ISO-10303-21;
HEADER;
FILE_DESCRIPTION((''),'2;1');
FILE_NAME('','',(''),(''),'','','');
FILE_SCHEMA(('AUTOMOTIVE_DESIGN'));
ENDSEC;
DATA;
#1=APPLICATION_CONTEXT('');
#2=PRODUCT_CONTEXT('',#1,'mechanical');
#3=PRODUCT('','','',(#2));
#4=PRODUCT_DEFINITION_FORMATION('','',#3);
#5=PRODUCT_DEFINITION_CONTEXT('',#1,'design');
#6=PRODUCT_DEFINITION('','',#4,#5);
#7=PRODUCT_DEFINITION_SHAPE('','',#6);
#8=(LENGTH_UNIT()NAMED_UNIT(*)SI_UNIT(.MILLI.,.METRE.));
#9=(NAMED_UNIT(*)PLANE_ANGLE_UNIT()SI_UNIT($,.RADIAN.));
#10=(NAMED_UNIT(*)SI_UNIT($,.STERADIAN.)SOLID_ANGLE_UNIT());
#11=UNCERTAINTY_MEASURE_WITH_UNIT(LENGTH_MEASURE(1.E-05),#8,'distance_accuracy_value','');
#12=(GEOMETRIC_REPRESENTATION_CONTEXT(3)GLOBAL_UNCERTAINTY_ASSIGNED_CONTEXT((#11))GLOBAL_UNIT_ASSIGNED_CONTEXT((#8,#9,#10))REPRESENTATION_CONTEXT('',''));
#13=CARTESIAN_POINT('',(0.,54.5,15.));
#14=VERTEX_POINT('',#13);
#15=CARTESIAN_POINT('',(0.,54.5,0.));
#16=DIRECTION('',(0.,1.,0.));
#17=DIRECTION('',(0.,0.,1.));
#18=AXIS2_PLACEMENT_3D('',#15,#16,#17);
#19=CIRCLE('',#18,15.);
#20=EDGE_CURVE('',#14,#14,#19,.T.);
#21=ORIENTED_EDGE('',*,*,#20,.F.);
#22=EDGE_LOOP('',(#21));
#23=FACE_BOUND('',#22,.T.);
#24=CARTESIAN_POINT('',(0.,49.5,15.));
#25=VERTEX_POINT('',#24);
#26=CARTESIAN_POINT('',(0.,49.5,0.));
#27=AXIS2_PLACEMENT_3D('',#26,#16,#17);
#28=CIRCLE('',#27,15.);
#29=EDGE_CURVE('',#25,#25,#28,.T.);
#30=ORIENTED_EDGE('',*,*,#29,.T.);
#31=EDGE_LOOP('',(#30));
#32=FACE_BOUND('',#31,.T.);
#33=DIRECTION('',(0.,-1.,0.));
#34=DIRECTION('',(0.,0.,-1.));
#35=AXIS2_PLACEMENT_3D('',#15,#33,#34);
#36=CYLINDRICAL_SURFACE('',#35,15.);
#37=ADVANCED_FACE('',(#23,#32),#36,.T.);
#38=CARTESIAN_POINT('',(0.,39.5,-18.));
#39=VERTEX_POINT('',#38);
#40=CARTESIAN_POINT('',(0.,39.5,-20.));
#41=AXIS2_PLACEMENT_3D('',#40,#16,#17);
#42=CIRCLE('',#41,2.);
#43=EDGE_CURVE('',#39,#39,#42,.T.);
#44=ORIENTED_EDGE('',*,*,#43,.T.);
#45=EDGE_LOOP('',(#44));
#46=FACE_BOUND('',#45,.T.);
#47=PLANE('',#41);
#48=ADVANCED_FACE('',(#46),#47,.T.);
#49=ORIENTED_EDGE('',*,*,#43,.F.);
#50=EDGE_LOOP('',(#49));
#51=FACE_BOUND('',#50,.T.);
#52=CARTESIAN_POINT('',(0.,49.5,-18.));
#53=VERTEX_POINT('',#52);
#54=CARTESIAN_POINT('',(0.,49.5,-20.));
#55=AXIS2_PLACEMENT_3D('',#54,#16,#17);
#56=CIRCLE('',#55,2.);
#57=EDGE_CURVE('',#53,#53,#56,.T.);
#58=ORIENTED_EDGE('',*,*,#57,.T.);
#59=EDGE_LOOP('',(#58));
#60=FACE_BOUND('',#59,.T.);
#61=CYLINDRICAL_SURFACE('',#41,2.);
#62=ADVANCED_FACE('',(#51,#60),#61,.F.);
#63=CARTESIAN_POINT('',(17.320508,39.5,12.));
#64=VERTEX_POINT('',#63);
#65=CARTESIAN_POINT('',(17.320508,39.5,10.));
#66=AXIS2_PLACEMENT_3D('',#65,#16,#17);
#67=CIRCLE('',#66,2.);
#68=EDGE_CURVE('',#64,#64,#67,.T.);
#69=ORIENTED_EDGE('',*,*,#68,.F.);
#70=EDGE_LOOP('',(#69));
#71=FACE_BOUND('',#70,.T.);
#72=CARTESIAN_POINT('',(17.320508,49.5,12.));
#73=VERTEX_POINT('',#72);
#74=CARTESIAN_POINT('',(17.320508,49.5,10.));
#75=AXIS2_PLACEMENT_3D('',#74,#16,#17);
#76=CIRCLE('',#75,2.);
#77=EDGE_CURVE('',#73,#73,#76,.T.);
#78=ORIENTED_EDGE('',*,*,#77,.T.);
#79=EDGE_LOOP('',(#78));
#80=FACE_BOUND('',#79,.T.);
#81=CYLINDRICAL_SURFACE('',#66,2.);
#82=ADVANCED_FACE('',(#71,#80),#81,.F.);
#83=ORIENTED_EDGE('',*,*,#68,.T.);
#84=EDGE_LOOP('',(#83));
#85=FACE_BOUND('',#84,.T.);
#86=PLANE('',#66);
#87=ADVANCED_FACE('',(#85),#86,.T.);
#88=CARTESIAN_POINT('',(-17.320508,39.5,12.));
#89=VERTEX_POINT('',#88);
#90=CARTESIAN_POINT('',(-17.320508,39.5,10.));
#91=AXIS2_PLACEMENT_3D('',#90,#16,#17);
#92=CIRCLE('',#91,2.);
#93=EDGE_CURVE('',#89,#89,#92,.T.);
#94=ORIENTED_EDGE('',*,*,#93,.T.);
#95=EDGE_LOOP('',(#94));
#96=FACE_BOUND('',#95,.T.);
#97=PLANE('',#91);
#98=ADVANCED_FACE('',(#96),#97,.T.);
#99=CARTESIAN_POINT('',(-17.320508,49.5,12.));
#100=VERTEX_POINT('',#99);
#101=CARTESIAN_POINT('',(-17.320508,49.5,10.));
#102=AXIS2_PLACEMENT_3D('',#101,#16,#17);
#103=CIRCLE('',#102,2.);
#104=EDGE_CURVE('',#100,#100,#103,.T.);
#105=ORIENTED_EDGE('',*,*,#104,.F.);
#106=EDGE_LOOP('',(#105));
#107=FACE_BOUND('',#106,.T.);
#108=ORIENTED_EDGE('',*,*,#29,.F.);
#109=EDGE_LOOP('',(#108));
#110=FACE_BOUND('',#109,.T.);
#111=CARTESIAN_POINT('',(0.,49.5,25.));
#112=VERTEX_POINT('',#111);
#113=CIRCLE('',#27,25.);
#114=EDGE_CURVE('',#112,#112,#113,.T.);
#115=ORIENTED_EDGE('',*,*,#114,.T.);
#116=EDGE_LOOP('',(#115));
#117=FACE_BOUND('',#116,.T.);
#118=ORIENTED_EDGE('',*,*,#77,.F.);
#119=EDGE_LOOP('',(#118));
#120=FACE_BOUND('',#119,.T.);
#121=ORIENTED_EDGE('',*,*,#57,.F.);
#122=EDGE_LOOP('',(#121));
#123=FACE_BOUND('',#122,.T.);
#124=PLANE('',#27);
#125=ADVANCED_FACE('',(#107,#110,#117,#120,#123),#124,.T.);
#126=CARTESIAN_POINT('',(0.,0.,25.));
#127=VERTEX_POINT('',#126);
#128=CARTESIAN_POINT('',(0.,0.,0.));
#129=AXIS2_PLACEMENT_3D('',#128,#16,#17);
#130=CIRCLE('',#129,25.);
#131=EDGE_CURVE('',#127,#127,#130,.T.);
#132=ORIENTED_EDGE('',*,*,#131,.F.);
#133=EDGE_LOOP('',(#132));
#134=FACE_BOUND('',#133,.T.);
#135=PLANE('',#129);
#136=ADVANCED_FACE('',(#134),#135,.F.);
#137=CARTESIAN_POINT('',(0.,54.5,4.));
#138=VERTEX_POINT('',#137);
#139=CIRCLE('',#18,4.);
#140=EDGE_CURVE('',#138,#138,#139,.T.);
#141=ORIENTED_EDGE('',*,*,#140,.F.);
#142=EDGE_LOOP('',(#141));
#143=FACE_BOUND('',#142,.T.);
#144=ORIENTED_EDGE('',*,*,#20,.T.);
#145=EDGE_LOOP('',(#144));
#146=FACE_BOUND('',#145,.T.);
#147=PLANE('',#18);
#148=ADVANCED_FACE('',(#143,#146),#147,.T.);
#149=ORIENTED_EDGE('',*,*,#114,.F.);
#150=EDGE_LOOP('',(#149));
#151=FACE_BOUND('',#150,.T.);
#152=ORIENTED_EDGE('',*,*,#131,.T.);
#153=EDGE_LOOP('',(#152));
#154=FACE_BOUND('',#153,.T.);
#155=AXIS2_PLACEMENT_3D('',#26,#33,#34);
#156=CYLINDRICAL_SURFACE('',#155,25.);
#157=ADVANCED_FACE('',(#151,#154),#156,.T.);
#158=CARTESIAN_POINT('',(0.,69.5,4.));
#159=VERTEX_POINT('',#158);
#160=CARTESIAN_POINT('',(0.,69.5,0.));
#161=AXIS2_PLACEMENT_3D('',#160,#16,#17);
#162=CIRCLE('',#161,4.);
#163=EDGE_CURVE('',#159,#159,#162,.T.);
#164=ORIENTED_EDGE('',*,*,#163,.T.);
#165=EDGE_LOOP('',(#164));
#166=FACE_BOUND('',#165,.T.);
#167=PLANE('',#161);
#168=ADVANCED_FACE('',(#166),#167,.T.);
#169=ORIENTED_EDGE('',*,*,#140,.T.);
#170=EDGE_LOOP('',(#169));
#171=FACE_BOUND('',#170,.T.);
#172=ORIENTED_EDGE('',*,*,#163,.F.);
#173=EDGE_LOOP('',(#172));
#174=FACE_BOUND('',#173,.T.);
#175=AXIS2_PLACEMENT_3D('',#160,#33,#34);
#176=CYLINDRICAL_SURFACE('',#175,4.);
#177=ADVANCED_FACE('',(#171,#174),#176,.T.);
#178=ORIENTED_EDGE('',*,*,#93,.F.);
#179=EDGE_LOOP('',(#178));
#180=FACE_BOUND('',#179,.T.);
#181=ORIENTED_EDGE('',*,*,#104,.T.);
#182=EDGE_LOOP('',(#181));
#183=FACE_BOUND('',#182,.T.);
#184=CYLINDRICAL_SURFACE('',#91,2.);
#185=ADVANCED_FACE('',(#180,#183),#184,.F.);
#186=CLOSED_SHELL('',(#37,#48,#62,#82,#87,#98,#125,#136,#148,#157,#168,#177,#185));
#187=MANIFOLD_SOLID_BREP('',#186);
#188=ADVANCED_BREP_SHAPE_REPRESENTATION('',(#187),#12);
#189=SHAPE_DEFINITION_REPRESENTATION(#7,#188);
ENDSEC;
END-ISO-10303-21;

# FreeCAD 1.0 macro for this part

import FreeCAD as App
import Part
import Sketcher

V = App.Vector

doc = App.newDocument("Part")
params = doc.addObject("Spreadsheet::Sheet", "Params")
for row, (alias, value) in enumerate([
    ("sketch1_diameter", "50 mm"),
    ("pad1_length", "49.5 mm"),
    ("sketch2_diameter", "30 mm"),
    ("pad2_length", "5 mm"),
    ("sketch3_diameter", "8 mm"),
    ("pad3_length", "15 mm"),
    ("sketch4_diameter", "4 mm"),
    ("pocket1_length", "10 mm"),
], start=1):
    params.set(f"A{row}", alias)
    params.set(f"B{row}", "=" + value)
    params.setAlias(f"B{row}", alias)

body = doc.addObject("PartDesign::Body", "Body")

sketch1 = body.newObject("Sketcher::SketchObject", "Sketch")
sketch1.AttachmentSupport = (doc.getObject("XZ_Plane"), [""])
sketch1.MapMode = "FlatFace"
sketch1.addGeometry(Part.Circle(V(0, 0, 0), V(0, 0, 1), 25), False)
sketch1.addConstraint([
    Sketcher.Constraint("Coincident", 0, 3, -1, 1),
    Sketcher.Constraint("Diameter", 0, 50.0),
])
sketch1.setExpression("Constraints[1]", "Params.sketch1_diameter")
pad1 = body.newObject("PartDesign::Pad", "Pad")
pad1.Profile = sketch1
pad1.setExpression("Length", "Params.pad1_length")
pad1.Reversed = True

sketch2 = body.newObject("Sketcher::SketchObject", "Sketch001")
sketch2.AttachmentSupport = (doc.getObject("XZ_Plane"), [""])
sketch2.MapMode = "FlatFace"
sketch2.AttachmentOffset = App.Placement(V(0, 0, -49.5), App.Rotation())
sketch2.addGeometry(Part.Circle(V(0, 0, 0), V(0, 0, 1), 15), False)
sketch2.addConstraint([
    Sketcher.Constraint("Coincident", 0, 3, -1, 1),
    Sketcher.Constraint("Diameter", 0, 30.0),
])
sketch2.setExpression("Constraints[1]", "Params.sketch2_diameter")
pad2 = body.newObject("PartDesign::Pad", "Pad001")
pad2.Profile = sketch2
pad2.setExpression("Length", "Params.pad2_length")
pad2.Reversed = True

sketch3 = body.newObject("Sketcher::SketchObject", "Sketch002")
sketch3.AttachmentSupport = (doc.getObject("XZ_Plane"), [""])
sketch3.MapMode = "FlatFace"
sketch3.AttachmentOffset = App.Placement(V(0, 0, -54.5), App.Rotation())
sketch3.addGeometry(Part.Circle(V(0, 0, 0), V(0, 0, 1), 4), False)
sketch3.addConstraint([
    Sketcher.Constraint("Coincident", 0, 3, -1, 1),
    Sketcher.Constraint("Diameter", 0, 8.0),
])
sketch3.setExpression("Constraints[1]", "Params.sketch3_diameter")
pad3 = body.newObject("PartDesign::Pad", "Pad002")
pad3.Profile = sketch3
pad3.setExpression("Length", "Params.pad3_length")
pad3.Reversed = True

sketch4 = body.newObject("Sketcher::SketchObject", "Sketch003")
sketch4.AttachmentSupport = (doc.getObject("XZ_Plane"), [""])
sketch4.MapMode = "FlatFace"
sketch4.AttachmentOffset = App.Placement(V(0, 0, -49.5), App.Rotation())
sketch4.addGeometry([
    Part.Circle(V(0, -20, 0), V(0, 0, 1), 2),
    Part.Circle(V(17.3, 10, 0), V(0, 0, 1), 2),
    Part.Circle(V(-17.3, 10, 0), V(0, 0, 1), 2),
], False)
sketch4.addConstraint([
    Sketcher.Constraint("Equal", 0, 1),
    Sketcher.Constraint("Equal", 1, 2),
    Sketcher.Constraint("Symmetric", 1, 3, 2, 3, -2),
    Sketcher.Constraint("PointOnObject", 0, 3, -2),
    Sketcher.Constraint("Diameter", 0, 4.0),
    Sketcher.Constraint("DistanceY", 0, 3, -1, 1, 20.0),
    Sketcher.Constraint("DistanceY", -1, 1, 1, 3, 10.0),
    Sketcher.Constraint("DistanceX", -1, 1, 1, 3, 17.320508),
])
sketch4.setExpression("Constraints[4]", "Params.sketch4_diameter")
pocket1 = body.newObject("PartDesign::Pocket", "Pocket")
pocket1.Profile = sketch4
pocket1.setExpression("Length", "Params.pocket1_length")
pocket1.Reversed = True

doc.recompute()
